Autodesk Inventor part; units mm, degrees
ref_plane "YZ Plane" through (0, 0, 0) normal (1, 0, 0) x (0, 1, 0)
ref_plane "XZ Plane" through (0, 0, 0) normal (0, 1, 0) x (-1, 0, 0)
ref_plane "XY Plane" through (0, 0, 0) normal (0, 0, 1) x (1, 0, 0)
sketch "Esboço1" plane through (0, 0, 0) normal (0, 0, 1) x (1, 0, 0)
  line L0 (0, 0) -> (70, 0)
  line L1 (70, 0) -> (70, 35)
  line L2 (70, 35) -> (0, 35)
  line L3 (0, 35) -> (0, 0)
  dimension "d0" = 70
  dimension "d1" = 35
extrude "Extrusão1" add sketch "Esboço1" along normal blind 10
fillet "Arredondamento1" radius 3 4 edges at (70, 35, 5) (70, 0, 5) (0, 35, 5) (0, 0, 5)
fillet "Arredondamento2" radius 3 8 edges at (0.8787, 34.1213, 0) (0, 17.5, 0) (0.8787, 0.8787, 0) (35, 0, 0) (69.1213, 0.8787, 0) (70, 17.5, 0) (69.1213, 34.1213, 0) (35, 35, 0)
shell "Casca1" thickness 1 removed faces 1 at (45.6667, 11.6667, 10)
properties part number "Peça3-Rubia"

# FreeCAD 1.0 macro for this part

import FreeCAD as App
import Part
import Sketcher
Q = App.Units.Quantity


def edges_at(feature, points):
    """Names of the edges that pass closest to the given points."""
    edges = feature.Shape.Edges
    near = lambda p: min(range(len(edges)), key=lambda i: edges[i].distToShape(Part.Vertex(*p))[0])
    return sorted({f"Edge{near(p) + 1}" for p in points})


def faces_at(feature, points):
    """Names of the faces that lie closest to the given points."""
    faces = feature.Shape.Faces
    near = lambda p: min(range(len(faces)), key=lambda i: faces[i].distToShape(Part.Vertex(*p))[0])
    return sorted({f"Face{near(p) + 1}" for p in points})

doc = App.newDocument("Part")
params = doc.addObject("Spreadsheet::Sheet", "Params")
for row, (alias, value) in enumerate([
    ("sketch1_width", "70 mm"),
    ("sketch1_height", "35 mm"),
    ("pad1_length", "10 mm"),
    ("fillet_radius", "3 mm"),
    ("fillet2_radius", "3 mm"),
    ("thickness_wall", "1 mm"),
], start=1):
    params.set(f"A{row}", alias)
    params.set(f"B{row}", "=" + value)
    params.setAlias(f"B{row}", alias)

body = doc.addObject("PartDesign::Body", "Body")

# Sketch on XY plane
sketch1 = body.newObject("Sketcher::SketchObject", "Sketch")
sketch1.AttachmentSupport = (doc.getObject("XY_Plane"), [""])
sketch1.MapMode = "FlatFace"
sketch1.addGeometry(Part.LineSegment(App.Vector(0, 35, 0), App.Vector(0, 0, 0)), False)
sketch1.addGeometry(Part.LineSegment(App.Vector(0, 0, 0), App.Vector(70, 0, 0)), False)
sketch1.addGeometry(Part.LineSegment(App.Vector(70, 0, 0), App.Vector(70, 35, 0)), False)
sketch1.addGeometry(Part.LineSegment(App.Vector(70, 35, 0), App.Vector(0, 35, 0)), False)
sketch1.addConstraint(Sketcher.Constraint("Coincident", 0, 2, 1, 1))
sketch1.addConstraint(Sketcher.Constraint("Coincident", 1, 2, 2, 1))
sketch1.addConstraint(Sketcher.Constraint("Coincident", 2, 2, 3, 1))
sketch1.addConstraint(Sketcher.Constraint("Coincident", 3, 2, 0, 1))
sketch1.addConstraint(Sketcher.Constraint("Vertical", 0))
sketch1.addConstraint(Sketcher.Constraint("Horizontal", 1))
sketch1.addConstraint(Sketcher.Constraint("Vertical", 2))
sketch1.addConstraint(Sketcher.Constraint("Horizontal", 3))
sketch1.addConstraint(Sketcher.Constraint("Coincident", 0, 2, -1, 1))
sketch1.addConstraint(Sketcher.Constraint("DistanceX", 1, 1, 1, 2, Q("70 mm")))
sketch1.addConstraint(Sketcher.Constraint("DistanceY", 0, 2, 0, 1, Q("35 mm")))
sketch1.setExpression("Constraints[9]", "Params.sketch1_width")
sketch1.setExpression("Constraints[10]", "Params.sketch1_height")
pad1 = body.newObject("PartDesign::Pad", "Pad")
pad1.Profile = sketch1
pad1.setExpression("Length", "Params.pad1_length")
doc.recompute()

fillet = body.newObject("PartDesign::Fillet", "Fillet")
fillet.Base = (pad1, edges_at(pad1, [
    (70, 35, 5),
    (70, 0, 5),
    (0, 35, 5),
    (0, 0, 5),
]))
fillet.setExpression("Radius", "Params.fillet_radius")
doc.recompute()

fillet2 = body.newObject("PartDesign::Fillet", "Fillet001")
fillet2.Base = (fillet, edges_at(fillet, [
    (0.879, 34.121, 0),
    (0, 17.5, 0),
    (0.879, 0.879, 0),
    (35, 0, 0),
    (69.121, 0.879, 0),
    (70, 17.5, 0),
    (69.121, 34.121, 0),
    (35, 35, 0),
]))
fillet2.setExpression("Radius", "Params.fillet2_radius")
doc.recompute()

thickness = body.newObject("PartDesign::Thickness", "Thickness")
thickness.Base = (fillet2, faces_at(fillet2, [(45.667, 11.667, 10)]))
thickness.setExpression("Value", "Params.thickness_wall")
thickness.Reversed = True
thickness.Join = "Intersection"

doc.recompute()
